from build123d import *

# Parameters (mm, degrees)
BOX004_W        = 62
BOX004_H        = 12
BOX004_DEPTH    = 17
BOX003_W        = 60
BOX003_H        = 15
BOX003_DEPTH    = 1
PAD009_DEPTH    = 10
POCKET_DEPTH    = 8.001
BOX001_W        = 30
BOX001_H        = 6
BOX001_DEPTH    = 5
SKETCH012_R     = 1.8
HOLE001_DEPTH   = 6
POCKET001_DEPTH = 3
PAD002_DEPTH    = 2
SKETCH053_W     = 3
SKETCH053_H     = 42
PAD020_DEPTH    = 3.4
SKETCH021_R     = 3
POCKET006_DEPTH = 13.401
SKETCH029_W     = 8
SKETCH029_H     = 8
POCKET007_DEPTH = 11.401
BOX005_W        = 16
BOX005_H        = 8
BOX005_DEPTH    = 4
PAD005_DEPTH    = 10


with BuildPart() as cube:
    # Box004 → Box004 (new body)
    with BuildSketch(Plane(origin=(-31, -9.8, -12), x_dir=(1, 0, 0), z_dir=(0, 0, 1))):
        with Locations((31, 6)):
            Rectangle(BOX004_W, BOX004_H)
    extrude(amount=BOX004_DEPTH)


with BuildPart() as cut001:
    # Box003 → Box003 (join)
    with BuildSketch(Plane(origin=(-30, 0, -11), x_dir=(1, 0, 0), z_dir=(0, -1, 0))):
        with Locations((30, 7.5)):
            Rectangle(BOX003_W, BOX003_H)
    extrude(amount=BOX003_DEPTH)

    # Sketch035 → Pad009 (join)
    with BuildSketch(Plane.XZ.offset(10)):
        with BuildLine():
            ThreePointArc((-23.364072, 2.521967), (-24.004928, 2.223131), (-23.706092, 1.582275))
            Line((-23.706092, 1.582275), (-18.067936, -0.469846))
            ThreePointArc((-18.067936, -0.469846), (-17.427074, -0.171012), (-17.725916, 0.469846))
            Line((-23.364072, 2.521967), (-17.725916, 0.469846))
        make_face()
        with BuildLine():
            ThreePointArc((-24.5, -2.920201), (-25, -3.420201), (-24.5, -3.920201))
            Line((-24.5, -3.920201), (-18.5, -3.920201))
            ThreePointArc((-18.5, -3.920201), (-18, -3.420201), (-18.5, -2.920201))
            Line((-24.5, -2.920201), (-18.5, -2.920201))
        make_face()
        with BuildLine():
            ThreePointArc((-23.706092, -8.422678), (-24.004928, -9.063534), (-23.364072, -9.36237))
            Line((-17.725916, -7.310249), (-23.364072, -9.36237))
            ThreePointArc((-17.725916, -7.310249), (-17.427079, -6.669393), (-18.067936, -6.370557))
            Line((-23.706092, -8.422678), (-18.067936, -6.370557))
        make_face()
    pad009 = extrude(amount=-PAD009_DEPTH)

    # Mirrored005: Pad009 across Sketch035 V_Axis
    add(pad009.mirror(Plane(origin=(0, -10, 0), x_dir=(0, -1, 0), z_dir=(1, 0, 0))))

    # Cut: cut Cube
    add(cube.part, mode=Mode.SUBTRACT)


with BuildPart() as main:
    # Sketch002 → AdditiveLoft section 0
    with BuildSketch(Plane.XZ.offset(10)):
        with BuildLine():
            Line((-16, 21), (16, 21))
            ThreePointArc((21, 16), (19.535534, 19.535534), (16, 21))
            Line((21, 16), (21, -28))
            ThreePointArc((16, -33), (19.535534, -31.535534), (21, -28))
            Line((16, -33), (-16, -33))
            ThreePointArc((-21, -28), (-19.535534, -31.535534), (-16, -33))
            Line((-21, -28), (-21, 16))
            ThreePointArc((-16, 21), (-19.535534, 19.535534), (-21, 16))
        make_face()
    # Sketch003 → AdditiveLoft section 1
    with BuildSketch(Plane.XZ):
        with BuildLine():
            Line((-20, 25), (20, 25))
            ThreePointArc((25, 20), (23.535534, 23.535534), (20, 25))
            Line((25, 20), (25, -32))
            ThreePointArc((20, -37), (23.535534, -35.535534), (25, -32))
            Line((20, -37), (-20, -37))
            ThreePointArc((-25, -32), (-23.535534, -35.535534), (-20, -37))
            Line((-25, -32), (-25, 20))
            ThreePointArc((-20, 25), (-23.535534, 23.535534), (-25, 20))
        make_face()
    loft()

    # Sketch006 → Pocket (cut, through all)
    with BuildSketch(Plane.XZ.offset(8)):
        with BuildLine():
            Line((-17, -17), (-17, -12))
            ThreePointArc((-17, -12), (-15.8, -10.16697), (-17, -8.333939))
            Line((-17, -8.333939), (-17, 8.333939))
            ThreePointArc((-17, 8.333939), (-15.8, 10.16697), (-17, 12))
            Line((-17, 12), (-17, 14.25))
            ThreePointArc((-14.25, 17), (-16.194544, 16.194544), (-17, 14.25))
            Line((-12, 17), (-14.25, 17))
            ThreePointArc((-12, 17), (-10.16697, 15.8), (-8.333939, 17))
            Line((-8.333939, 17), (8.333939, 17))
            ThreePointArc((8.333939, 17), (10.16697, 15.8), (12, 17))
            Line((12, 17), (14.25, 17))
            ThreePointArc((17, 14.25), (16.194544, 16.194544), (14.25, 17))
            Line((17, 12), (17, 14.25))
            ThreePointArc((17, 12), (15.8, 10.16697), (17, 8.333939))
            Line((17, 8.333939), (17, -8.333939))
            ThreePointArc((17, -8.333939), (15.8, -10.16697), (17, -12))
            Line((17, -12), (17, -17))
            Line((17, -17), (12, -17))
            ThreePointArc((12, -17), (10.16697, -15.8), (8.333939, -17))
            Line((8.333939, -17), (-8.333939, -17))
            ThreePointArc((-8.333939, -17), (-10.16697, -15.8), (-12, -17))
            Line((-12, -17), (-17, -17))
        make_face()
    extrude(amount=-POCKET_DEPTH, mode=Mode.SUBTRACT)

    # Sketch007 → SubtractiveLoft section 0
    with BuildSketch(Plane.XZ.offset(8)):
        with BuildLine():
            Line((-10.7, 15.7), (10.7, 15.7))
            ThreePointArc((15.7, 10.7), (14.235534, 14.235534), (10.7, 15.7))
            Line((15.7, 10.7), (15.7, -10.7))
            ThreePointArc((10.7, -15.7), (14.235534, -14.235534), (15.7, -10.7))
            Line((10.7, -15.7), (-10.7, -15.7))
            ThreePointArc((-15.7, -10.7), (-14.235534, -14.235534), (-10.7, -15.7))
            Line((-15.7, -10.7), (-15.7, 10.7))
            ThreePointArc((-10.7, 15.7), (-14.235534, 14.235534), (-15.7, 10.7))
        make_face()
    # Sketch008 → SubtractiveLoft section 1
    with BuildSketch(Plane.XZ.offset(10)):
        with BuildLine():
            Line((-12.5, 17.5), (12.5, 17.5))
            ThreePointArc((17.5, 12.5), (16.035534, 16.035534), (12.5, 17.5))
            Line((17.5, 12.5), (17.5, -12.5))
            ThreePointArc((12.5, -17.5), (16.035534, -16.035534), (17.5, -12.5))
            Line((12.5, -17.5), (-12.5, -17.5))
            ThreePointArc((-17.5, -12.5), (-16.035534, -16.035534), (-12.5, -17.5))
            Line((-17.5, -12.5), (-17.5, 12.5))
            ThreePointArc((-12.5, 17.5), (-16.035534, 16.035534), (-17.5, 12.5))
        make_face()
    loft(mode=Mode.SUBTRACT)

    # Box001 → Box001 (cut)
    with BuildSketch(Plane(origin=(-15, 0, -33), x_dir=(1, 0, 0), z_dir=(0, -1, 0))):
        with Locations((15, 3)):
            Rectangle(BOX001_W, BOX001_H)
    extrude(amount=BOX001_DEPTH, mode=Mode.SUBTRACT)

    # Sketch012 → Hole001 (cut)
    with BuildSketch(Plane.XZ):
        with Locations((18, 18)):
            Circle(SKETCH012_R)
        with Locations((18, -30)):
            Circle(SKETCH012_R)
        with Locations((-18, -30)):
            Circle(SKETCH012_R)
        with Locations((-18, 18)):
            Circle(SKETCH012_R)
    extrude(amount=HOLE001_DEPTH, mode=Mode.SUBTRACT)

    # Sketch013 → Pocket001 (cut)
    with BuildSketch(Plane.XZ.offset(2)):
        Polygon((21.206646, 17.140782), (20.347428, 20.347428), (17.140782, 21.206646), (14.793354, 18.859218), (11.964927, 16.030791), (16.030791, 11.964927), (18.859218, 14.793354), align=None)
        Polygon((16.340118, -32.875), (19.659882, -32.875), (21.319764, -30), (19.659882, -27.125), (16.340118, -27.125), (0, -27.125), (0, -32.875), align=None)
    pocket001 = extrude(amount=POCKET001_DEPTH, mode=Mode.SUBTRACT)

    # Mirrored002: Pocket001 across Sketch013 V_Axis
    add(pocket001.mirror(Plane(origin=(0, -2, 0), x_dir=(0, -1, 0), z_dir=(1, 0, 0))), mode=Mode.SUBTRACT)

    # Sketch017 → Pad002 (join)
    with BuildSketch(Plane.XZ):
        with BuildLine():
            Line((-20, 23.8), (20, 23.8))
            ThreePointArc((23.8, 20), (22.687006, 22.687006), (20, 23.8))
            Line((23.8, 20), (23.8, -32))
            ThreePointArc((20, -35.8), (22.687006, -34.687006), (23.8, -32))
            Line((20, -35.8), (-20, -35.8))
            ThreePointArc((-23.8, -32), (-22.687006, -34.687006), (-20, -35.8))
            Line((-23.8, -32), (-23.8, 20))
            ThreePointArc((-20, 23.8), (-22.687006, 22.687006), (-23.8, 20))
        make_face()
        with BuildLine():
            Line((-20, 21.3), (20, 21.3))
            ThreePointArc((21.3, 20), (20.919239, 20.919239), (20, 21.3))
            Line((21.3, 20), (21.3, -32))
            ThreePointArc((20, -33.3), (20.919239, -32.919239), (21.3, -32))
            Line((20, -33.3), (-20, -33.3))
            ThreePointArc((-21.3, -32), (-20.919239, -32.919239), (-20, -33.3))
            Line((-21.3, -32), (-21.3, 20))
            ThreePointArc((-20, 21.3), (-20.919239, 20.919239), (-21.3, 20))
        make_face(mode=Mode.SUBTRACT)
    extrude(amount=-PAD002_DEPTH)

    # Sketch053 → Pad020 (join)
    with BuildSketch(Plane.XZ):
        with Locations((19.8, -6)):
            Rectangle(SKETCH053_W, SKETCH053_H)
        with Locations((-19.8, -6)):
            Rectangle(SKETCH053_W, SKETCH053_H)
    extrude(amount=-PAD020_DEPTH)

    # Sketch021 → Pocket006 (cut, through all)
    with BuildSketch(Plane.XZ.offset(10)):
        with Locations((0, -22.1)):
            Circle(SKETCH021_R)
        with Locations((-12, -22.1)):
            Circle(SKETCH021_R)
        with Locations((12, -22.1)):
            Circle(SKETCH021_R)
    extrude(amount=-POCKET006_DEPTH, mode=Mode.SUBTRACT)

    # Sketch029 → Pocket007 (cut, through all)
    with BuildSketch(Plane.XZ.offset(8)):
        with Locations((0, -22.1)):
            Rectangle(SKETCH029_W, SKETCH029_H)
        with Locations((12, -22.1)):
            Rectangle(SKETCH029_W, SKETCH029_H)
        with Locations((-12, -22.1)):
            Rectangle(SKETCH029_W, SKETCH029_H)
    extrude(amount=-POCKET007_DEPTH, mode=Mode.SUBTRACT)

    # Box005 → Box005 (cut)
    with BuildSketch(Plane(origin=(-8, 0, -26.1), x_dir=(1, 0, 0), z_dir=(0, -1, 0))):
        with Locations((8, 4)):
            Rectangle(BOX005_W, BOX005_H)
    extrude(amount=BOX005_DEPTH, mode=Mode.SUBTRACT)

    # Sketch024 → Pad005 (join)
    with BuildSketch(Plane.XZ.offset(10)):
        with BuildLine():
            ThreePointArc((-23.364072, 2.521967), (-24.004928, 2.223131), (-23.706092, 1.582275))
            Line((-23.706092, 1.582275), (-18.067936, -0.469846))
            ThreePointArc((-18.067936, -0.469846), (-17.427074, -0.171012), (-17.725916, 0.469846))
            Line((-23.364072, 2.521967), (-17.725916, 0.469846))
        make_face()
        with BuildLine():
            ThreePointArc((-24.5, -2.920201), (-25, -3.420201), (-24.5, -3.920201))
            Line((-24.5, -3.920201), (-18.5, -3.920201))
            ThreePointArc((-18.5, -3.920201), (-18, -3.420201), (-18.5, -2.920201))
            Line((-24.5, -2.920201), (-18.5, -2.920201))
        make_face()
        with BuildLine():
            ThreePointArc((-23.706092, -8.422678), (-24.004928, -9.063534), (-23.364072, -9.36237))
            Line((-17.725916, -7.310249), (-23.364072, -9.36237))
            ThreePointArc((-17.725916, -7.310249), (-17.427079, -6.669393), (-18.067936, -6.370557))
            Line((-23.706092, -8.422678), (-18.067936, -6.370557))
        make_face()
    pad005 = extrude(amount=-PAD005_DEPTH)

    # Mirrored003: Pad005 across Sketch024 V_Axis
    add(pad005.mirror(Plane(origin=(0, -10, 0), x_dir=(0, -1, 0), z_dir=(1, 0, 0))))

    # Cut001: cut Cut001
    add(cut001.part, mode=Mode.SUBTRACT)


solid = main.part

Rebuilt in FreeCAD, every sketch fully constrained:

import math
import FreeCAD as App
import Part
import Sketcher
from FreeCAD import Vector
Q = App.Units.Quantity

doc = App.newDocument("Part")
body = doc.addObject("PartDesign::Body", "Body")

sketch1 = body.newObject("Sketcher::SketchObject", "Sketch")
sketch1.AttachmentSupport = (doc.getObject("XY_Plane"), [""])
sketch1.MapMode = "FlatFace"
sketch1.AttachmentOffset = App.Placement(Vector(0, 0, -12), App.Rotation())
sketch1.addGeometry([
    Part.LineSegment(Vector(-31, 2, 0), Vector(-31, -10, 0)),
    Part.LineSegment(Vector(-31, -10, 0), Vector(31, -10, 0)),
    Part.LineSegment(Vector(31, -10, 0), Vector(31, 2, 0)),
    Part.LineSegment(Vector(31, 2, 0), Vector(-31, 2, 0)),
], False)
sketch1.addConstraint([
    Sketcher.Constraint("Coincident", 0, 2, 1, 1),
    Sketcher.Constraint("Coincident", 1, 2, 2, 1),
    Sketcher.Constraint("Coincident", 2, 2, 3, 1),
    Sketcher.Constraint("Coincident", 3, 2, 0, 1),
    Sketcher.Constraint("Vertical", 0),
    Sketcher.Constraint("Horizontal", 1),
    Sketcher.Constraint("Vertical", 2),
    Sketcher.Constraint("Horizontal", 3),
    Sketcher.Constraint("DistanceX", 1, 1, 1, 2, Q("62 mm")),
    Sketcher.Constraint("DistanceY", 0, 2, 0, 1, Q("12 mm")),
    Sketcher.Constraint("DistanceX", 0, 2, -1, 1, Q("31 mm")),
    Sketcher.Constraint("DistanceY", 0, 2, -1, 1, Q("9.8 mm")),
])
pad1 = body.newObject("PartDesign::Pad", "Pad")
pad1.Profile = sketch1
pad1.Length = 17
body2 = doc.addObject("PartDesign::Body", "Body001")
body2.AllowCompound = True

sketch2 = body2.newObject("Sketcher::SketchObject", "Sketch001")
sketch2.AttachmentSupport = (doc.getObject("XZ_Plane001"), [""])
sketch2.MapMode = "FlatFace"
sketch2.addGeometry([
    Part.LineSegment(Vector(-30, 4, 0), Vector(-30, -11, 0)),
    Part.LineSegment(Vector(-30, -11, 0), Vector(30, -11, 0)),
    Part.LineSegment(Vector(30, -11, 0), Vector(30, 4, 0)),
    Part.LineSegment(Vector(30, 4, 0), Vector(-30, 4, 0)),
], False)
sketch2.addConstraint([
    Sketcher.Constraint("Coincident", 0, 2, 1, 1),
    Sketcher.Constraint("Coincident", 1, 2, 2, 1),
    Sketcher.Constraint("Coincident", 2, 2, 3, 1),
    Sketcher.Constraint("Coincident", 3, 2, 0, 1),
    Sketcher.Constraint("Vertical", 0),
    Sketcher.Constraint("Horizontal", 1),
    Sketcher.Constraint("Vertical", 2),
    Sketcher.Constraint("Horizontal", 3),
    Sketcher.Constraint("DistanceX", 1, 1, 1, 2, Q("60 mm")),
    Sketcher.Constraint("DistanceY", 0, 2, 0, 1, Q("15 mm")),
    Sketcher.Constraint("DistanceX", 0, 2, -1, 1, Q("30 mm")),
    Sketcher.Constraint("DistanceY", 0, 2, -1, 1, Q("11 mm")),
])
pad2 = body2.newObject("PartDesign::Pad", "Pad001")
pad2.Profile = sketch2
pad2.Length = 1

sketch3 = body2.newObject("Sketcher::SketchObject", "Sketch002")
sketch3.AttachmentSupport = (doc.getObject("XZ_Plane001"), [""])
sketch3.MapMode = "FlatFace"
sketch3.AttachmentOffset = App.Placement(Vector(0, 0, 10), App.Rotation())
sketch3.addGeometry([
    Part.ArcOfCircle(Part.Circle(Vector(-23.54, 2.05, 0), Vector(0, 0, 1), 0.5), math.radians(70), math.radians(250)),
    Part.LineSegment(Vector(-23.71, 1.58, 0), Vector(-18.07, -0.47, 0)),
    Part.ArcOfCircle(Part.Circle(Vector(-17.9, 0, 0), Vector(0, 0, 1), 0.5), math.radians(-110), math.radians(70)),
    Part.LineSegment(Vector(-17.73, 0.47, 0), Vector(-23.36, 2.52, 0)),
    Part.ArcOfCircle(Part.Circle(Vector(-24.5, -3.42, 0), Vector(0, 0, 1), 0.5), math.radians(90), math.radians(270)),
    Part.LineSegment(Vector(-24.5, -3.92, 0), Vector(-18.5, -3.92, 0)),
    Part.ArcOfCircle(Part.Circle(Vector(-18.5, -3.42, 0), Vector(0, 0, 1), 0.5), math.radians(-90), math.radians(90)),
    Part.LineSegment(Vector(-18.5, -2.92, 0), Vector(-24.5, -2.92, 0)),
    Part.ArcOfCircle(Part.Circle(Vector(-23.54, -8.89, 0), Vector(0, 0, 1), 0.5), math.radians(110), math.radians(290)),
    Part.LineSegment(Vector(-23.36, -9.36, 0), Vector(-17.73, -7.31, 0)),
    Part.ArcOfCircle(Part.Circle(Vector(-17.9, -6.84, 0), Vector(0, 0, 1), 0.5), math.radians(-70), math.radians(110)),
    Part.LineSegment(Vector(-18.07, -6.37, 0), Vector(-23.71, -8.42, 0)),
], False)
sketch3.addConstraint([
    Sketcher.Constraint("Tangent", 0, 2, 1, 1),
    Sketcher.Constraint("Coincident", 1, 2, 2, 1),
    Sketcher.Constraint("Coincident", 2, 2, 3, 1),
    Sketcher.Constraint("Tangent", 3, 2, 0, 1),
    Sketcher.Constraint("Tangent", 4, 2, 5, 1),
    Sketcher.Constraint("Tangent", 5, 2, 6, 1),
    Sketcher.Constraint("Tangent", 6, 2, 7, 1),
    Sketcher.Constraint("Tangent", 7, 2, 4, 1),
    Sketcher.Constraint("Tangent", 8, 2, 9, 1),
    Sketcher.Constraint("Tangent", 9, 2, 10, 1),
    Sketcher.Constraint("Tangent", 10, 2, 11, 1),
    Sketcher.Constraint("Tangent", 11, 2, 8, 1),
    Sketcher.Constraint("Horizontal", 5),
    Sketcher.Constraint("Horizontal", 7),
    Sketcher.Constraint("Equal", 0, 2),
    Sketcher.Constraint("Equal", 2, 4),
    Sketcher.Constraint("Equal", 6, 8),
    Sketcher.Constraint("Equal", 8, 10),
    Sketcher.Constraint("Vertical", 0, 3, 8, 3),
    Sketcher.Constraint("Vertical", 3, 2, 8, 2),
    Sketcher.Constraint("Vertical", 2, 2, 9, 2),
    Sketcher.Constraint("Vertical", 1, 2, 10, 2),
    Sketcher.Constraint("Radius", 0, Q("0.5 mm")),
    Sketcher.Constraint("DistanceX", 5, 1, 5, 2, Q("6 mm")),
    Sketcher.Constraint("Angle", 1, Q("-20 deg")),
    Sketcher.Constraint("Distance", 1, Q("6 mm")),
    Sketcher.Constraint("DistanceX", 4, 3, -1, 1, Q("24.5 mm")),
    Sketcher.Constraint("DistanceY", 4, 3, -1, 1, Q("3.420201 mm")),
    Sketcher.Constraint("DistanceY", 4, 3, 2, 3, Q("3.420199 mm")),
    Sketcher.Constraint("DistanceY", 10, 3, 6, 3, Q("3.420202 mm")),
    Sketcher.Constraint("DistanceX", 0, 3, -1, 1, Q("23.535082 mm")),
    Sketcher.Constraint("DistanceY", -1, 1, 0, 3, Q("2.052121 mm")),
])
pad3 = body2.newObject("PartDesign::Pad", "Pad002")
pad3.Profile = sketch3
pad3.Length = 10
pad3.Reversed = True
doc.recompute()

mirrored = body2.newObject("PartDesign::Mirrored", "Mirrored")
mirrored.Originals = [pad3]
mirrored.MirrorPlane = (doc.getObject("YZ_Plane001"), [""])
body2.Tip = mirrored
doc.recompute()

boolean = body2.newObject("PartDesign::Boolean", "Boolean")
boolean.Type = "Cut"
boolean.addObjects([body])
body3 = doc.addObject("PartDesign::Body", "Body002")

sketch4 = body3.newObject("Sketcher::SketchObject", "Sketch003")
sketch4.AttachmentSupport = (doc.getObject("XZ_Plane002"), [""])
sketch4.MapMode = "FlatFace"
sketch4.AttachmentOffset = App.Placement(Vector(0, 0, 10), App.Rotation())
sketch4.addGeometry([
    Part.LineSegment(Vector(16, 21, 0), Vector(-16, 21, 0)),
    Part.ArcOfCircle(Part.Circle(Vector(-16, 16, 0), Vector(0, 0, 1), 5), math.radians(90), math.radians(180)),
    Part.LineSegment(Vector(-21, 16, 0), Vector(-21, -28, 0)),
    Part.ArcOfCircle(Part.Circle(Vector(-16, -28, 0), Vector(0, 0, 1), 5), math.radians(180), math.radians(270)),
    Part.LineSegment(Vector(-16, -33, 0), Vector(16, -33, 0)),
    Part.ArcOfCircle(Part.Circle(Vector(16, -28, 0), Vector(0, 0, 1), 5), math.radians(-90), math.radians(0)),
    Part.LineSegment(Vector(21, -28, 0), Vector(21, 16, 0)),
    Part.ArcOfCircle(Part.Circle(Vector(16, 16, 0), Vector(0, 0, 1), 5), math.radians(0), math.radians(90)),
], False)
sketch4.addConstraint([
    Sketcher.Constraint("Tangent", 0, 2, 1, 1),
    Sketcher.Constraint("Tangent", 1, 2, 2, 1),
    Sketcher.Constraint("Tangent", 2, 2, 3, 1),
    Sketcher.Constraint("Tangent", 3, 2, 4, 1),
    Sketcher.Constraint("Tangent", 4, 2, 5, 1),
    Sketcher.Constraint("Tangent", 5, 2, 6, 1),
    Sketcher.Constraint("Tangent", 6, 2, 7, 1),
    Sketcher.Constraint("Tangent", 7, 2, 0, 1),
    Sketcher.Constraint("Horizontal", 0),
    Sketcher.Constraint("Vertical", 2),
    Sketcher.Constraint("Horizontal", 4),
    Sketcher.Constraint("Vertical", 6),
    Sketcher.Constraint("Equal", 1, 3),
    Sketcher.Constraint("Equal", 3, 5),
    Sketcher.Constraint("Equal", 5, 7),
    Sketcher.Constraint("Radius", 1, Q("5 mm")),
    Sketcher.Constraint("DistanceX", 0, 2, 0, 1, Q("32 mm")),
    Sketcher.Constraint("DistanceY", 2, 2, 2, 1, Q("44 mm")),
    Sketcher.Constraint("DistanceX", 1, 3, -1, 1, Q("16 mm")),
    Sketcher.Constraint("DistanceY", -1, 1, 1, 3, Q("16 mm")),
])

sketch5 = body3.newObject("Sketcher::SketchObject", "Sketch004")
sketch5.AttachmentSupport = (doc.getObject("XZ_Plane002"), [""])
sketch5.MapMode = "FlatFace"
sketch5.addGeometry([
    Part.LineSegment(Vector(20, 25, 0), Vector(-20, 25, 0)),
    Part.ArcOfCircle(Part.Circle(Vector(-20, 20, 0), Vector(0, 0, 1), 5), math.radians(90), math.radians(180)),
    Part.LineSegment(Vector(-25, 20, 0), Vector(-25, -32, 0)),
    Part.ArcOfCircle(Part.Circle(Vector(-20, -32, 0), Vector(0, 0, 1), 5), math.radians(180), math.radians(270)),
    Part.LineSegment(Vector(-20, -37, 0), Vector(20, -37, 0)),
    Part.ArcOfCircle(Part.Circle(Vector(20, -32, 0), Vector(0, 0, 1), 5), math.radians(-90), math.radians(0)),
    Part.LineSegment(Vector(25, -32, 0), Vector(25, 20, 0)),
    Part.ArcOfCircle(Part.Circle(Vector(20, 20, 0), Vector(0, 0, 1), 5), math.radians(0), math.radians(90)),
], False)
sketch5.addConstraint([
    Sketcher.Constraint("Tangent", 0, 2, 1, 1),
    Sketcher.Constraint("Tangent", 1, 2, 2, 1),
    Sketcher.Constraint("Tangent", 2, 2, 3, 1),
    Sketcher.Constraint("Tangent", 3, 2, 4, 1),
    Sketcher.Constraint("Tangent", 4, 2, 5, 1),
    Sketcher.Constraint("Tangent", 5, 2, 6, 1),
    Sketcher.Constraint("Tangent", 6, 2, 7, 1),
    Sketcher.Constraint("Tangent", 7, 2, 0, 1),
    Sketcher.Constraint("Horizontal", 0),
    Sketcher.Constraint("Vertical", 2),
    Sketcher.Constraint("Horizontal", 4),
    Sketcher.Constraint("Vertical", 6),
    Sketcher.Constraint("Equal", 1, 3),
    Sketcher.Constraint("Equal", 3, 5),
    Sketcher.Constraint("Equal", 5, 7),
    Sketcher.Constraint("Radius", 1, Q("5 mm")),
    Sketcher.Constraint("DistanceX", 0, 2, 0, 1, Q("40 mm")),
    Sketcher.Constraint("DistanceY", 2, 2, 2, 1, Q("52 mm")),
    Sketcher.Constraint("DistanceX", 1, 3, -1, 1, Q("20 mm")),
    Sketcher.Constraint("DistanceY", -1, 1, 1, 3, Q("20 mm")),
])

additiveloft = body3.newObject("PartDesign::AdditiveLoft", "AdditiveLoft")
additiveloft.Profile = sketch4
additiveloft.Sections = [sketch5]

sketch6 = body3.newObject("Sketcher::SketchObject", "Sketch005")
sketch6.AttachmentSupport = (doc.getObject("XZ_Plane002"), [""])
sketch6.MapMode = "FlatFace"
sketch6.AttachmentOffset = App.Placement(Vector(0, 0, 8), App.Rotation())
sketch6.addGeometry([
    Part.LineSegment(Vector(-17, -12, 0), Vector(-17, -17, 0)),
    Part.LineSegment(Vector(-17, -17, 0), Vector(-12, -17, 0)),
    Part.ArcOfCircle(Part.Circle(Vector(-10.2, -17.8, 0), Vector(0, 0, 1), 2), math.radians(24), math.radians(156)),
    Part.LineSegment(Vector(-8.3, -17, 0), Vector(8.3, -17, 0)),
    Part.ArcOfCircle(Part.Circle(Vector(10.2, -17.8, 0), Vector(0, 0, 1), 2), math.radians(24), math.radians(156)),
    Part.LineSegment(Vector(12, -17, 0), Vector(17, -17, 0)),
    Part.LineSegment(Vector(17, -17, 0), Vector(17, -12, 0)),
    Part.ArcOfCircle(Part.Circle(Vector(17.8, -10.2, 0), Vector(0, 0, 1), 2), math.radians(114), math.radians(246)),
    Part.LineSegment(Vector(17, -8.3, 0), Vector(17, 8.3, 0)),
    Part.ArcOfCircle(Part.Circle(Vector(17.8, 10.2, 0), Vector(0, 0, 1), 2), math.radians(114), math.radians(246)),
    Part.LineSegment(Vector(17, 12, 0), Vector(17, 14.2, 0)),
    Part.ArcOfCircle(Part.Circle(Vector(14.3, 14.3, 0), Vector(0, 0, 1), 2.7), math.radians(0), math.radians(90)),
    Part.LineSegment(Vector(14.2, 17, 0), Vector(12, 17, 0)),
    Part.ArcOfCircle(Part.Circle(Vector(10.2, 17.8, 0), Vector(0, 0, 1), 2), math.radians(-156), math.radians(-24)),
    Part.LineSegment(Vector(8.3, 17, 0), Vector(-8.3, 17, 0)),
    Part.ArcOfCircle(Part.Circle(Vector(-10.2, 17.8, 0), Vector(0, 0, 1), 2), math.radians(-156), math.radians(-24)),
    Part.LineSegment(Vector(-12, 17, 0), Vector(-14.2, 17, 0)),
    Part.ArcOfCircle(Part.Circle(Vector(-14.3, 14.3, 0), Vector(0, 0, 1), 2.7), math.radians(90), math.radians(180)),
    Part.LineSegment(Vector(-17, 14.2, 0), Vector(-17, 12, 0)),
    Part.ArcOfCircle(Part.Circle(Vector(-17.8, 10.2, 0), Vector(0, 0, 1), 2), math.radians(-66), math.radians(66)),
    Part.LineSegment(Vector(-17, 8.3, 0), Vector(-17, -8.3, 0)),
    Part.ArcOfCircle(Part.Circle(Vector(-17.8, -10.2, 0), Vector(0, 0, 1), 2), math.radians(-66), math.radians(66)),
], False)
sketch6.addConstraint([
    Sketcher.Constraint("Coincident", 0, 2, 1, 1),
    Sketcher.Constraint("Coincident", 1, 2, 2, 2),
    Sketcher.Constraint("Coincident", 2, 1, 3, 1),
    Sketcher.Constraint("Coincident", 3, 2, 4, 2),
    Sketcher.Constraint("Coincident", 4, 1, 5, 1),
    Sketcher.Constraint("Coincident", 5, 2, 6, 1),
    Sketcher.Constraint("Coincident", 6, 2, 7, 2),
    Sketcher.Constraint("Coincident", 7, 1, 8, 1),
    Sketcher.Constraint("Coincident", 8, 2, 9, 2),
    Sketcher.Constraint("Coincident", 9, 1, 10, 1),
    Sketcher.Constraint("Tangent", 10, 2, 11, 1),
    Sketcher.Constraint("Tangent", 11, 2, 12, 1),
    Sketcher.Constraint("Coincident", 12, 2, 13, 2),
    Sketcher.Constraint("Coincident", 13, 1, 14, 1),
    Sketcher.Constraint("Coincident", 14, 2, 15, 2),
    Sketcher.Constraint("Coincident", 15, 1, 16, 1),
    Sketcher.Constraint("Tangent", 16, 2, 17, 1),
    Sketcher.Constraint("Tangent", 17, 2, 18, 1),
    Sketcher.Constraint("Coincident", 18, 2, 19, 2),
    Sketcher.Constraint("Coincident", 19, 1, 20, 1),
    Sketcher.Constraint("Coincident", 20, 2, 21, 2),
    Sketcher.Constraint("Coincident", 21, 1, 0, 1),
    Sketcher.Constraint("Vertical", 0),
    Sketcher.Constraint("Horizontal", 1),
    Sketcher.Constraint("Horizontal", 3),
    Sketcher.Constraint("Horizontal", 5),
    Sketcher.Constraint("Vertical", 6),
    Sketcher.Constraint("Vertical", 8),
    Sketcher.Constraint("Vertical", 10),
    Sketcher.Constraint("Horizontal", 12),
    Sketcher.Constraint("Horizontal", 14),
    Sketcher.Constraint("Horizontal", 16),
    Sketcher.Constraint("Vertical", 18),
    Sketcher.Constraint("Vertical", 20),
    Sketcher.Constraint("Equal", 2, 4),
    Sketcher.Constraint("Equal", 4, 7),
    Sketcher.Constraint("Equal", 7, 9),
    Sketcher.Constraint("Equal", 9, 13),
    Sketcher.Constraint("Equal", 13, 15),
    Sketcher.Constraint("Equal", 11, 17),
    Sketcher.Constraint("Equal", 15, 19),
    Sketcher.Constraint("Equal", 19, 21),
    Sketcher.Constraint("Symmetric", 2, 3, 13, 3, -1, 1),
    Sketcher.Constraint("Symmetric", 4, 3, 15, 3, -1, 1),
    Sketcher.Constraint("Symmetric", 7, 3, 19, 3, -1, 1),
    Sketcher.Constraint("Symmetric", 9, 3, 21, 3, -1, 1),
    Sketcher.Constraint("Symmetric", 2, 3, 4, 3, -2),
    Sketcher.Constraint("Symmetric", 11, 3, 17, 3, -2),
    Sketcher.Constraint("Symmetric", 9, 3, 19, 3, -2),
    Sketcher.Constraint("Symmetric", 0, 2, 5, 2, -2),
    Sketcher.Constraint("Horizontal", 1, 2, 2, 1),
    Sketcher.Constraint("Horizontal", 12, 2, 13, 1),
    Sketcher.Constraint("Horizontal", 8, 2, 19, 1),
    Sketcher.Constraint("Vertical", 6, 2, 7, 1),
    Sketcher.Constraint("Vertical", 8, 2, 9, 1),
    Sketcher.Constraint("Vertical", 4, 1, 12, 2),
    Sketcher.Constraint("Equal", 5, 0),
    Sketcher.Constraint("Equal", 14, 8),
    Sketcher.Constraint("Radius", 2, Q("2 mm")),
    Sketcher.Constraint("DistanceX", 1, 1, 1, 2, Q("5 mm")),
    Sketcher.Constraint("Radius", 11, Q("2.749999 mm")),
    Sketcher.Constraint("DistanceX", 0, 2, -1, 1, Q("17 mm")),
    Sketcher.Constraint("DistanceY", 0, 2, -1, 1, Q("17 mm")),
    Sketcher.Constraint("DistanceY", 2, 3, -1, 1, Q("17.8 mm")),
])
pocket1 = body3.newObject("PartDesign::Pocket", "Pocket")
pocket1.Profile = sketch6
pocket1.Type = "ThroughAll"

sketch7 = body3.newObject("Sketcher::SketchObject", "Sketch006")
sketch7.AttachmentSupport = (doc.getObject("XZ_Plane002"), [""])
sketch7.MapMode = "FlatFace"
sketch7.AttachmentOffset = App.Placement(Vector(0, 0, 8), App.Rotation())
sketch7.addGeometry([
    Part.LineSegment(Vector(10.7, 15.7, 0), Vector(-10.7, 15.7, 0)),
    Part.ArcOfCircle(Part.Circle(Vector(-10.7, 10.7, 0), Vector(0, 0, 1), 5), math.radians(90), math.radians(180)),
    Part.LineSegment(Vector(-15.7, 10.7, 0), Vector(-15.7, -10.7, 0)),
    Part.ArcOfCircle(Part.Circle(Vector(-10.7, -10.7, 0), Vector(0, 0, 1), 5), math.radians(180), math.radians(270)),
    Part.LineSegment(Vector(-10.7, -15.7, 0), Vector(10.7, -15.7, 0)),
    Part.ArcOfCircle(Part.Circle(Vector(10.7, -10.7, 0), Vector(0, 0, 1), 5), math.radians(-90), math.radians(0)),
    Part.LineSegment(Vector(15.7, -10.7, 0), Vector(15.7, 10.7, 0)),
    Part.ArcOfCircle(Part.Circle(Vector(10.7, 10.7, 0), Vector(0, 0, 1), 5), math.radians(0), math.radians(90)),
], False)
sketch7.addConstraint([
    Sketcher.Constraint("Tangent", 0, 2, 1, 1),
    Sketcher.Constraint("Tangent", 1, 2, 2, 1),
    Sketcher.Constraint("Tangent", 2, 2, 3, 1),
    Sketcher.Constraint("Tangent", 3, 2, 4, 1),
    Sketcher.Constraint("Tangent", 4, 2, 5, 1),
    Sketcher.Constraint("Tangent", 5, 2, 6, 1),
    Sketcher.Constraint("Tangent", 6, 2, 7, 1),
    Sketcher.Constraint("Tangent", 7, 2, 0, 1),
    Sketcher.Constraint("Horizontal", 0),
    Sketcher.Constraint("Vertical", 2),
    Sketcher.Constraint("Horizontal", 4),
    Sketcher.Constraint("Vertical", 6),
    Sketcher.Constraint("Equal", 1, 3),
    Sketcher.Constraint("Equal", 3, 5),
    Sketcher.Constraint("Equal", 5, 7),
    Sketcher.Constraint("Symmetric", 1, 3, 5, 3, -1, 1),
    Sketcher.Constraint("Equal", 4, 2),
    Sketcher.Constraint("Radius", 1, Q("5 mm")),
    Sketcher.Constraint("DistanceX", 0, 2, 0, 1, Q("21.4 mm")),
])

sketch8 = body3.newObject("Sketcher::SketchObject", "Sketch007")
sketch8.AttachmentSupport = (doc.getObject("XZ_Plane002"), [""])
sketch8.MapMode = "FlatFace"
sketch8.AttachmentOffset = App.Placement(Vector(0, 0, 10), App.Rotation())
sketch8.addGeometry([
    Part.LineSegment(Vector(12.5, 17.5, 0), Vector(-12.5, 17.5, 0)),
    Part.ArcOfCircle(Part.Circle(Vector(-12.5, 12.5, 0), Vector(0, 0, 1), 5), math.radians(90), math.radians(180)),
    Part.LineSegment(Vector(-17.5, 12.5, 0), Vector(-17.5, -12.5, 0)),
    Part.ArcOfCircle(Part.Circle(Vector(-12.5, -12.5, 0), Vector(0, 0, 1), 5), math.radians(180), math.radians(270)),
    Part.LineSegment(Vector(-12.5, -17.5, 0), Vector(12.5, -17.5, 0)),
    Part.ArcOfCircle(Part.Circle(Vector(12.5, -12.5, 0), Vector(0, 0, 1), 5), math.radians(-90), math.radians(0)),
    Part.LineSegment(Vector(17.5, -12.5, 0), Vector(17.5, 12.5, 0)),
    Part.ArcOfCircle(Part.Circle(Vector(12.5, 12.5, 0), Vector(0, 0, 1), 5), math.radians(0), math.radians(90)),
], False)
sketch8.addConstraint([
    Sketcher.Constraint("Tangent", 0, 2, 1, 1),
    Sketcher.Constraint("Tangent", 1, 2, 2, 1),
    Sketcher.Constraint("Tangent", 2, 2, 3, 1),
    Sketcher.Constraint("Tangent", 3, 2, 4, 1),
    Sketcher.Constraint("Tangent", 4, 2, 5, 1),
    Sketcher.Constraint("Tangent", 5, 2, 6, 1),
    Sketcher.Constraint("Tangent", 6, 2, 7, 1),
    Sketcher.Constraint("Tangent", 7, 2, 0, 1),
    Sketcher.Constraint("Horizontal", 0),
    Sketcher.Constraint("Vertical", 2),
    Sketcher.Constraint("Horizontal", 4),
    Sketcher.Constraint("Vertical", 6),
    Sketcher.Constraint("Equal", 1, 3),
    Sketcher.Constraint("Equal", 3, 5),
    Sketcher.Constraint("Equal", 5, 7),
    Sketcher.Constraint("Symmetric", 1, 3, 5, 3, -1, 1),
    Sketcher.Constraint("Equal", 4, 2),
    Sketcher.Constraint("Radius", 1, Q("5 mm")),
    Sketcher.Constraint("DistanceX", 0, 2, 0, 1, Q("25 mm")),
])

subtractiveloft = body3.newObject("PartDesign::SubtractiveLoft", "SubtractiveLoft")
subtractiveloft.Profile = sketch7
subtractiveloft.Sections = [sketch8]

sketch9 = body3.newObject("Sketcher::SketchObject", "Sketch008")
sketch9.AttachmentSupport = (doc.getObject("XZ_Plane002"), [""])
sketch9.MapMode = "FlatFace"
sketch9.addGeometry([
    Part.LineSegment(Vector(-15, -27, 0), Vector(-15, -33, 0)),
    Part.LineSegment(Vector(-15, -33, 0), Vector(15, -33, 0)),
    Part.LineSegment(Vector(15, -33, 0), Vector(15, -27, 0)),
    Part.LineSegment(Vector(15, -27, 0), Vector(-15, -27, 0)),
], False)
sketch9.addConstraint([
    Sketcher.Constraint("Coincident", 0, 2, 1, 1),
    Sketcher.Constraint("Coincident", 1, 2, 2, 1),
    Sketcher.Constraint("Coincident", 2, 2, 3, 1),
    Sketcher.Constraint("Coincident", 3, 2, 0, 1),
    Sketcher.Constraint("Vertical", 0),
    Sketcher.Constraint("Horizontal", 1),
    Sketcher.Constraint("Vertical", 2),
    Sketcher.Constraint("Horizontal", 3),
    Sketcher.Constraint("DistanceX", 1, 1, 1, 2, Q("30 mm")),
    Sketcher.Constraint("DistanceY", 0, 2, 0, 1, Q("6 mm")),
    Sketcher.Constraint("DistanceX", 0, 2, -1, 1, Q("15 mm")),
    Sketcher.Constraint("DistanceY", 0, 2, -1, 1, Q("33 mm")),
])
pocket2 = body3.newObject("PartDesign::Pocket", "Pocket001")
pocket2.Profile = sketch9
pocket2.Length = 5
pocket2.Reversed = True

sketch10 = body3.newObject("Sketcher::SketchObject", "Sketch009")
sketch10.AttachmentSupport = (doc.getObject("XZ_Plane002"), [""])
sketch10.MapMode = "FlatFace"
sketch10.addGeometry([
    Part.Circle(Vector(18, 18, 0), Vector(0, 0, 1), 1.8),
    Part.Circle(Vector(18, -30, 0), Vector(0, 0, 1), 1.8),
    Part.Circle(Vector(-18, -30, 0), Vector(0, 0, 1), 1.8),
    Part.Circle(Vector(-18, 18, 0), Vector(0, 0, 1), 1.8),
], False)
sketch10.addConstraint([
    Sketcher.Constraint("Equal", 0, 1),
    Sketcher.Constraint("Equal", 1, 2),
    Sketcher.Constraint("Equal", 2, 3),
    Sketcher.Constraint("Symmetric", 1, 3, 2, 3, -2),
    Sketcher.Constraint("Symmetric", 0, 3, 3, 3, -2),
    Sketcher.Constraint("Vertical", 0, 3, 1, 3),
    Sketcher.Constraint("Diameter", 0, Q("3.6 mm")),
    Sketcher.Constraint("DistanceX", -1, 1, 0, 3, Q("18 mm")),
    Sketcher.Constraint("DistanceY", -1, 1, 0, 3, Q("18 mm")),
    Sketcher.Constraint("DistanceY", 1, 3, -1, 1, Q("30 mm")),
])
pocket3 = body3.newObject("PartDesign::Pocket", "Pocket002")
pocket3.Profile = sketch10
pocket3.Length = 6
pocket3.Reversed = True

sketch11 = body3.newObject("Sketcher::SketchObject", "Sketch010")
sketch11.AttachmentSupport = (doc.getObject("XZ_Plane002"), [""])
sketch11.MapMode = "FlatFace"
sketch11.AttachmentOffset = App.Placement(Vector(0, 0, 2), App.Rotation())
sketch11.addGeometry([
    Part.LineSegment(Vector(21.2, 17.1, 0), Vector(20.3, 20.3, 0)),
    Part.LineSegment(Vector(20.3, 20.3, 0), Vector(17.1, 21.2, 0)),
    Part.LineSegment(Vector(17.1, 21.2, 0), Vector(12, 16, 0)),
    Part.LineSegment(Vector(12, 16, 0), Vector(16, 12, 0)),
    Part.LineSegment(Vector(16, 12, 0), Vector(21.2, 17.1, 0)),
    Part.LineSegment(Vector(19.7, -32.9, 0), Vector(21.3, -30, 0)),
    Part.LineSegment(Vector(21.3, -30, 0), Vector(19.7, -27.1, 0)),
    Part.LineSegment(Vector(19.7, -27.1, 0), Vector(0, -27.1, 0)),
    Part.LineSegment(Vector(0, -27.1, 0), Vector(0, -32.9, 0)),
    Part.LineSegment(Vector(0, -32.9, 0), Vector(19.7, -32.9, 0)),
], False)
sketch11.addConstraint([
    Sketcher.Constraint("Coincident", 0, 2, 1, 1),
    Sketcher.Constraint("Coincident", 1, 2, 2, 1),
    Sketcher.Constraint("Coincident", 2, 2, 3, 1),
    Sketcher.Constraint("Coincident", 3, 2, 4, 1),
    Sketcher.Constraint("Coincident", 4, 2, 0, 1),
    Sketcher.Constraint("Coincident", 5, 2, 6, 1),
    Sketcher.Constraint("Coincident", 6, 2, 7, 1),
    Sketcher.Constraint("Coincident", 7, 2, 8, 1),
    Sketcher.Constraint("Coincident", 8, 2, 9, 1),
    Sketcher.Constraint("Coincident", 9, 2, 5, 1),
    Sketcher.Constraint("Horizontal", 7),
    Sketcher.Constraint("Vertical", 8),
    Sketcher.Constraint("Horizontal", 9),
    Sketcher.Constraint("PointOnObject", 7, 2, -2),
    Sketcher.Constraint("Perpendicular", 2, 3),
    Sketcher.Constraint("Perpendicular", 3, 4),
    Sketcher.Constraint("Vertical", 6, 2, 9, 2),
    Sketcher.Constraint("Equal", 0, 1),
    Sketcher.Constraint("Equal", 2, 4),
    Sketcher.Constraint("Equal", 1, 5),
    Sketcher.Constraint("Equal", 5, 6),
    Sketcher.Constraint("Angle", 0, Q("104.999997 deg")),
    Sketcher.Constraint("Angle", 1, Q("165.000003 deg")),
    Sketcher.Constraint("Angle", 5, Q("60 deg")),
    Sketcher.Constraint("DistanceY", 5, 2, -1, 1, Q("30 mm")),
    Sketcher.Constraint("DistanceY", 8, 2, 8, 1, Q("5.75 mm")),
    Sketcher.Constraint("DistanceX", 7, 2, 7, 1, Q("19.659882 mm")),
    Sketcher.Constraint("DistanceX", 2, 2, 0, 2, Q("8.382501 mm")),
    Sketcher.Constraint("DistanceX", -1, 1, 0, 2, Q("20.347428 mm")),
    Sketcher.Constraint("DistanceY", -1, 1, 0, 2, Q("20.347428 mm")),
])
pocket4 = body3.newObject("PartDesign::Pocket", "Pocket003")
pocket4.Profile = sketch11
pocket4.Length = 3
pocket4.Reversed = True
doc.recompute()

mirrored2 = body3.newObject("PartDesign::Mirrored", "Mirrored001")
mirrored2.Originals = [pocket4]
mirrored2.MirrorPlane = (doc.getObject("YZ_Plane002"), [""])
body3.Tip = mirrored2

sketch12 = body3.newObject("Sketcher::SketchObject", "Sketch011")
sketch12.AttachmentSupport = (doc.getObject("XZ_Plane002"), [""])
sketch12.MapMode = "FlatFace"
sketch12.addGeometry([
    Part.LineSegment(Vector(20, 23.8, 0), Vector(-20, 23.8, 0)),
    Part.ArcOfCircle(Part.Circle(Vector(-20, 20, 0), Vector(0, 0, 1), 3.8), math.radians(90), math.radians(180)),
    Part.LineSegment(Vector(-23.8, 20, 0), Vector(-23.8, -32, 0)),
    Part.ArcOfCircle(Part.Circle(Vector(-20, -32, 0), Vector(0, 0, 1), 3.8), math.radians(180), math.radians(270)),
    Part.LineSegment(Vector(-20, -35.8, 0), Vector(20, -35.8, 0)),
    Part.ArcOfCircle(Part.Circle(Vector(20, -32, 0), Vector(0, 0, 1), 3.8), math.radians(-90), math.radians(0)),
    Part.LineSegment(Vector(23.8, -32, 0), Vector(23.8, 20, 0)),
    Part.ArcOfCircle(Part.Circle(Vector(20, 20, 0), Vector(0, 0, 1), 3.8), math.radians(0), math.radians(90)),
    Part.LineSegment(Vector(-20, 21.3, 0), Vector(20, 21.3, 0)),
    Part.ArcOfCircle(Part.Circle(Vector(20, 20, 0), Vector(0, 0, 1), 1.3), math.radians(0), math.radians(90)),
    Part.LineSegment(Vector(21.3, 20, 0), Vector(21.3, -32, 0)),
    Part.ArcOfCircle(Part.Circle(Vector(20, -32, 0), Vector(0, 0, 1), 1.3), math.radians(-90), math.radians(0)),
    Part.LineSegment(Vector(20, -33.3, 0), Vector(-20, -33.3, 0)),
    Part.ArcOfCircle(Part.Circle(Vector(-20, -32, 0), Vector(0, 0, 1), 1.3), math.radians(180), math.radians(270)),
    Part.LineSegment(Vector(-21.3, -32, 0), Vector(-21.3, 20, 0)),
    Part.ArcOfCircle(Part.Circle(Vector(-20, 20, 0), Vector(0, 0, 1), 1.3), math.radians(90), math.radians(180)),
], False)
sketch12.addConstraint([
    Sketcher.Constraint("Tangent", 0, 2, 1, 1),
    Sketcher.Constraint("Tangent", 1, 2, 2, 1),
    Sketcher.Constraint("Tangent", 2, 2, 3, 1),
    Sketcher.Constraint("Tangent", 3, 2, 4, 1),
    Sketcher.Constraint("Tangent", 4, 2, 5, 1),
    Sketcher.Constraint("Tangent", 5, 2, 6, 1),
    Sketcher.Constraint("Tangent", 6, 2, 7, 1),
    Sketcher.Constraint("Tangent", 7, 2, 0, 1),
    Sketcher.Constraint("Tangent", 8, 2, 9, 2),
    Sketcher.Constraint("Tangent", 9, 1, 10, 1),
    Sketcher.Constraint("Tangent", 10, 2, 11, 2),
    Sketcher.Constraint("Tangent", 11, 1, 12, 1),
    Sketcher.Constraint("Tangent", 12, 2, 13, 2),
    Sketcher.Constraint("Tangent", 13, 1, 14, 1),
    Sketcher.Constraint("Tangent", 14, 2, 15, 2),
    Sketcher.Constraint("Tangent", 15, 1, 8, 1),
    Sketcher.Constraint("Horizontal", 0),
    Sketcher.Constraint("Vertical", 2),
    Sketcher.Constraint("Horizontal", 4),
    Sketcher.Constraint("Vertical", 6),
    Sketcher.Constraint("Horizontal", 8),
    Sketcher.Constraint("Vertical", 10),
    Sketcher.Constraint("Horizontal", 12),
    Sketcher.Constraint("Vertical", 14),
    Sketcher.Constraint("Coincident", 9, 3, 7, 3),
    Sketcher.Constraint("Coincident", 11, 3, 5, 3),
    Sketcher.Constraint("Coincident", 13, 3, 3, 3),
    Sketcher.Constraint("Equal", 1, 3),
    Sketcher.Constraint("Equal", 3, 5),
    Sketcher.Constraint("Equal", 5, 7),
    Sketcher.Constraint("Equal", 13, 15),
    Sketcher.Constraint("Radius", 1, Q("3.799999 mm")),
    Sketcher.Constraint("Radius", 9, Q("1.299999 mm")),
    Sketcher.Constraint("DistanceX", 0, 2, 0, 1, Q("40 mm")),
    Sketcher.Constraint("DistanceY", 2, 2, 2, 1, Q("52 mm")),
    Sketcher.Constraint("DistanceX", 1, 3, -1, 1, Q("20.000001 mm")),
    Sketcher.Constraint("DistanceY", -1, 1, 1, 3, Q("20.000001 mm")),
])
pad4 = body3.newObject("PartDesign::Pad", "Pad003")
pad4.Profile = sketch12
pad4.Length = 2
pad4.Reversed = True

sketch13 = body3.newObject("Sketcher::SketchObject", "Sketch012")
sketch13.AttachmentSupport = (doc.getObject("XZ_Plane002"), [""])
sketch13.MapMode = "FlatFace"
sketch13.addGeometry([
    Part.LineSegment(Vector(18.3, 15, 0), Vector(18.3, -27, 0)),
    Part.LineSegment(Vector(18.3, -27, 0), Vector(21.3, -27, 0)),
    Part.LineSegment(Vector(21.3, -27, 0), Vector(21.3, 15, 0)),
    Part.LineSegment(Vector(21.3, 15, 0), Vector(18.3, 15, 0)),
    Part.LineSegment(Vector(-21.3, 15, 0), Vector(-21.3, -27, 0)),
    Part.LineSegment(Vector(-21.3, -27, 0), Vector(-18.3, -27, 0)),
    Part.LineSegment(Vector(-18.3, -27, 0), Vector(-18.3, 15, 0)),
    Part.LineSegment(Vector(-18.3, 15, 0), Vector(-21.3, 15, 0)),
], False)
sketch13.addConstraint([
    Sketcher.Constraint("Coincident", 0, 2, 1, 1),
    Sketcher.Constraint("Coincident", 1, 2, 2, 1),
    Sketcher.Constraint("Coincident", 2, 2, 3, 1),
    Sketcher.Constraint("Coincident", 3, 2, 0, 1),
    Sketcher.Constraint("Coincident", 4, 2, 5, 1),
    Sketcher.Constraint("Coincident", 5, 2, 6, 1),
    Sketcher.Constraint("Coincident", 6, 2, 7, 1),
    Sketcher.Constraint("Coincident", 7, 2, 4, 1),
    Sketcher.Constraint("Vertical", 0),
    Sketcher.Constraint("Horizontal", 1),
    Sketcher.Constraint("Vertical", 2),
    Sketcher.Constraint("Horizontal", 3),
    Sketcher.Constraint("Vertical", 4),
    Sketcher.Constraint("Horizontal", 5),
    Sketcher.Constraint("Vertical", 6),
    Sketcher.Constraint("Horizontal", 7),
    Sketcher.Constraint("Symmetric", 1, 2, 4, 2, -2),
    Sketcher.Constraint("Symmetric", 3, 2, 6, 2, -2),
    Sketcher.Constraint("DistanceX", 1, 1, 1, 2, Q("3 mm")),
    Sketcher.Constraint("DistanceY", 0, 2, 0, 1, Q("42 mm")),
    Sketcher.Constraint("DistanceY", 0, 2, -1, 1, Q("27 mm")),
    Sketcher.Constraint("DistanceX", -1, 1, 0, 2, Q("18.3 mm")),
])
pad5 = body3.newObject("PartDesign::Pad", "Pad004")
pad5.Profile = sketch13
pad5.Length = 3.4
pad5.Reversed = True

sketch14 = body3.newObject("Sketcher::SketchObject", "Sketch013")
sketch14.AttachmentSupport = (doc.getObject("XZ_Plane002"), [""])
sketch14.MapMode = "FlatFace"
sketch14.AttachmentOffset = App.Placement(Vector(0, 0, 10), App.Rotation())
sketch14.addGeometry([
    Part.Circle(Vector(0, -22.1, 0), Vector(0, 0, 1), 3),
    Part.Circle(Vector(-12, -22.1, 0), Vector(0, 0, 1), 3),
    Part.Circle(Vector(12, -22.1, 0), Vector(0, 0, 1), 3),
], False)
sketch14.addConstraint([
    Sketcher.Constraint("Equal", 0, 1),
    Sketcher.Constraint("Equal", 1, 2),
    Sketcher.Constraint("Symmetric", 1, 3, 2, 3, -2),
    Sketcher.Constraint("PointOnObject", 0, 3, -2),
    Sketcher.Constraint("Horizontal", 0, 3, 1, 3),
    Sketcher.Constraint("Diameter", 0, Q("6 mm")),
    Sketcher.Constraint("DistanceX", 1, 3, -1, 1, Q("12 mm")),
    Sketcher.Constraint("DistanceY", 0, 3, -1, 1, Q("22.1 mm")),
])
pocket5 = body3.newObject("PartDesign::Pocket", "Pocket004")
pocket5.Profile = sketch14
pocket5.Type = "ThroughAll"

sketch15 = body3.newObject("Sketcher::SketchObject", "Sketch014")
sketch15.AttachmentSupport = (doc.getObject("XZ_Plane002"), [""])
sketch15.MapMode = "FlatFace"
sketch15.AttachmentOffset = App.Placement(Vector(0, 0, 8), App.Rotation())
sketch15.addGeometry([
    Part.LineSegment(Vector(-4, -18, 0), Vector(-4, -26, 0)),
    Part.LineSegment(Vector(-4, -26, 0), Vector(4, -26, 0)),
    Part.LineSegment(Vector(4, -26, 0), Vector(4, -18, 0)),
    Part.LineSegment(Vector(4, -18, 0), Vector(-4, -18, 0)),
    Part.LineSegment(Vector(8, -18, 0), Vector(8, -26, 0)),
    Part.LineSegment(Vector(8, -26, 0), Vector(16, -26, 0)),
    Part.LineSegment(Vector(16, -26, 0), Vector(16, -18, 0)),
    Part.LineSegment(Vector(16, -18, 0), Vector(8, -18, 0)),
    Part.LineSegment(Vector(-16, -18, 0), Vector(-16, -26, 0)),
    Part.LineSegment(Vector(-16, -26, 0), Vector(-8, -26, 0)),
    Part.LineSegment(Vector(-8, -26, 0), Vector(-8, -18, 0)),
    Part.LineSegment(Vector(-8, -18, 0), Vector(-16, -18, 0)),
], False)
sketch15.addConstraint([
    Sketcher.Constraint("Coincident", 0, 2, 1, 1),
    Sketcher.Constraint("Coincident", 1, 2, 2, 1),
    Sketcher.Constraint("Coincident", 2, 2, 3, 1),
    Sketcher.Constraint("Coincident", 3, 2, 0, 1),
    Sketcher.Constraint("Coincident", 4, 2, 5, 1),
    Sketcher.Constraint("Coincident", 5, 2, 6, 1),
    Sketcher.Constraint("Coincident", 6, 2, 7, 1),
    Sketcher.Constraint("Coincident", 7, 2, 4, 1),
    Sketcher.Constraint("Coincident", 8, 2, 9, 1),
    Sketcher.Constraint("Coincident", 9, 2, 10, 1),
    Sketcher.Constraint("Coincident", 10, 2, 11, 1),
    Sketcher.Constraint("Coincident", 11, 2, 8, 1),
    Sketcher.Constraint("Vertical", 0),
    Sketcher.Constraint("Horizontal", 1),
    Sketcher.Constraint("Vertical", 2),
    Sketcher.Constraint("Horizontal", 3),
    Sketcher.Constraint("Vertical", 4),
    Sketcher.Constraint("Horizontal", 5),
    Sketcher.Constraint("Vertical", 6),
    Sketcher.Constraint("Horizontal", 7),
    Sketcher.Constraint("Vertical", 8),
    Sketcher.Constraint("Horizontal", 9),
    Sketcher.Constraint("Vertical", 10),
    Sketcher.Constraint("Horizontal", 11),
    Sketcher.Constraint("Symmetric", 5, 2, 8, 2, -2),
    Sketcher.Constraint("Symmetric", 7, 2, 10, 2, -2),
    Sketcher.Constraint("Horizontal", 1, 2, 4, 2),
    Sketcher.Constraint("Horizontal", 3, 2, 6, 2),
    Sketcher.Constraint("Equal", 3, 5),
    Sketcher.Constraint("Equal", 11, 0),
    Sketcher.Constraint("DistanceX", 1, 1, 1, 2, Q("8 mm")),
    Sketcher.Constraint("DistanceX", 0, 2, -1, 1, Q("4 mm")),
    Sketcher.Constraint("DistanceX", -1, 1, 4, 2, Q("8 mm")),
    Sketcher.Constraint("DistanceY", 0, 2, -1, 1, Q("26.1 mm")),
])
pocket6 = body3.newObject("PartDesign::Pocket", "Pocket005")
pocket6.Profile = sketch15
pocket6.Type = "ThroughAll"

sketch16 = body3.newObject("Sketcher::SketchObject", "Sketch015")
sketch16.AttachmentSupport = (doc.getObject("XZ_Plane002"), [""])
sketch16.MapMode = "FlatFace"
sketch16.addGeometry([
    Part.LineSegment(Vector(-8, -18, 0), Vector(-8, -26, 0)),
    Part.LineSegment(Vector(-8, -26, 0), Vector(8, -26, 0)),
    Part.LineSegment(Vector(8, -26, 0), Vector(8, -18, 0)),
    Part.LineSegment(Vector(8, -18, 0), Vector(-8, -18, 0)),
], False)
sketch16.addConstraint([
    Sketcher.Constraint("Coincident", 0, 2, 1, 1),
    Sketcher.Constraint("Coincident", 1, 2, 2, 1),
    Sketcher.Constraint("Coincident", 2, 2, 3, 1),
    Sketcher.Constraint("Coincident", 3, 2, 0, 1),
    Sketcher.Constraint("Vertical", 0),
    Sketcher.Constraint("Horizontal", 1),
    Sketcher.Constraint("Vertical", 2),
    Sketcher.Constraint("Horizontal", 3),
    Sketcher.Constraint("DistanceX", 1, 1, 1, 2, Q("16 mm")),
    Sketcher.Constraint("DistanceY", 0, 2, 0, 1, Q("8 mm")),
    Sketcher.Constraint("DistanceX", 0, 2, -1, 1, Q("8 mm")),
    Sketcher.Constraint("DistanceY", 0, 2, -1, 1, Q("26.1 mm")),
])
pocket7 = body3.newObject("PartDesign::Pocket", "Pocket006")
pocket7.Profile = sketch16
pocket7.Length = 4
pocket7.Reversed = True

sketch17 = body3.newObject("Sketcher::SketchObject", "Sketch016")
sketch17.AttachmentSupport = (doc.getObject("XZ_Plane002"), [""])
sketch17.MapMode = "FlatFace"
sketch17.AttachmentOffset = App.Placement(Vector(0, 0, 10), App.Rotation())
sketch17.addGeometry([
    Part.ArcOfCircle(Part.Circle(Vector(-23.54, 2.05, 0), Vector(0, 0, 1), 0.5), math.radians(70), math.radians(250)),
    Part.LineSegment(Vector(-23.71, 1.58, 0), Vector(-18.07, -0.47, 0)),
    Part.ArcOfCircle(Part.Circle(Vector(-17.9, 0, 0), Vector(0, 0, 1), 0.5), math.radians(-110), math.radians(70)),
    Part.LineSegment(Vector(-17.73, 0.47, 0), Vector(-23.36, 2.52, 0)),
    Part.ArcOfCircle(Part.Circle(Vector(-24.5, -3.42, 0), Vector(0, 0, 1), 0.5), math.radians(90), math.radians(270)),
    Part.LineSegment(Vector(-24.5, -3.92, 0), Vector(-18.5, -3.92, 0)),
    Part.ArcOfCircle(Part.Circle(Vector(-18.5, -3.42, 0), Vector(0, 0, 1), 0.5), math.radians(-90), math.radians(90)),
    Part.LineSegment(Vector(-18.5, -2.92, 0), Vector(-24.5, -2.92, 0)),
    Part.ArcOfCircle(Part.Circle(Vector(-23.54, -8.89, 0), Vector(0, 0, 1), 0.5), math.radians(110), math.radians(290)),
    Part.LineSegment(Vector(-23.36, -9.36, 0), Vector(-17.73, -7.31, 0)),
    Part.ArcOfCircle(Part.Circle(Vector(-17.9, -6.84, 0), Vector(0, 0, 1), 0.5), math.radians(-70), math.radians(110)),
    Part.LineSegment(Vector(-18.07, -6.37, 0), Vector(-23.71, -8.42, 0)),
], False)
sketch17.addConstraint([
    Sketcher.Constraint("Tangent", 0, 2, 1, 1),
    Sketcher.Constraint("Coincident", 1, 2, 2, 1),
    Sketcher.Constraint("Coincident", 2, 2, 3, 1),
    Sketcher.Constraint("Tangent", 3, 2, 0, 1),
    Sketcher.Constraint("Tangent", 4, 2, 5, 1),
    Sketcher.Constraint("Tangent", 5, 2, 6, 1),
    Sketcher.Constraint("Tangent", 6, 2, 7, 1),
    Sketcher.Constraint("Tangent", 7, 2, 4, 1),
    Sketcher.Constraint("Tangent", 8, 2, 9, 1),
    Sketcher.Constraint("Tangent", 9, 2, 10, 1),
    Sketcher.Constraint("Tangent", 10, 2, 11, 1),
    Sketcher.Constraint("Tangent", 11, 2, 8, 1),
    Sketcher.Constraint("Horizontal", 5),
    Sketcher.Constraint("Horizontal", 7),
    Sketcher.Constraint("Equal", 0, 2),
    Sketcher.Constraint("Equal", 2, 4),
    Sketcher.Constraint("Equal", 6, 8),
    Sketcher.Constraint("Equal", 8, 10),
    Sketcher.Constraint("Vertical", 0, 3, 8, 3),
    Sketcher.Constraint("Vertical", 3, 2, 8, 2),
    Sketcher.Constraint("Vertical", 2, 2, 9, 2),
    Sketcher.Constraint("Vertical", 1, 2, 10, 2),
    Sketcher.Constraint("Radius", 0, Q("0.5 mm")),
    Sketcher.Constraint("DistanceX", 5, 1, 5, 2, Q("6 mm")),
    Sketcher.Constraint("Angle", 1, Q("-20 deg")),
    Sketcher.Constraint("Distance", 1, Q("6 mm")),
    Sketcher.Constraint("DistanceX", 4, 3, -1, 1, Q("24.5 mm")),
    Sketcher.Constraint("DistanceY", 4, 3, -1, 1, Q("3.420201 mm")),
    Sketcher.Constraint("DistanceY", 4, 3, 2, 3, Q("3.420199 mm")),
    Sketcher.Constraint("DistanceY", 10, 3, 6, 3, Q("3.420202 mm")),
    Sketcher.Constraint("DistanceX", 0, 3, -1, 1, Q("23.535082 mm")),
    Sketcher.Constraint("DistanceY", -1, 1, 0, 3, Q("2.052121 mm")),
])
pad6 = body3.newObject("PartDesign::Pad", "Pad005")
pad6.Profile = sketch17
pad6.Length = 10
pad6.Reversed = True
doc.recompute()

mirrored3 = body3.newObject("PartDesign::Mirrored", "Mirrored002")
mirrored3.Originals = [pad6]
mirrored3.MirrorPlane = (doc.getObject("YZ_Plane002"), [""])
body3.Tip = mirrored3
doc.recompute()

boolean2 = body3.newObject("PartDesign::Boolean", "Boolean001")
boolean2.Type = "Cut"
boolean2.addObjects([body2])

doc.recompute()
